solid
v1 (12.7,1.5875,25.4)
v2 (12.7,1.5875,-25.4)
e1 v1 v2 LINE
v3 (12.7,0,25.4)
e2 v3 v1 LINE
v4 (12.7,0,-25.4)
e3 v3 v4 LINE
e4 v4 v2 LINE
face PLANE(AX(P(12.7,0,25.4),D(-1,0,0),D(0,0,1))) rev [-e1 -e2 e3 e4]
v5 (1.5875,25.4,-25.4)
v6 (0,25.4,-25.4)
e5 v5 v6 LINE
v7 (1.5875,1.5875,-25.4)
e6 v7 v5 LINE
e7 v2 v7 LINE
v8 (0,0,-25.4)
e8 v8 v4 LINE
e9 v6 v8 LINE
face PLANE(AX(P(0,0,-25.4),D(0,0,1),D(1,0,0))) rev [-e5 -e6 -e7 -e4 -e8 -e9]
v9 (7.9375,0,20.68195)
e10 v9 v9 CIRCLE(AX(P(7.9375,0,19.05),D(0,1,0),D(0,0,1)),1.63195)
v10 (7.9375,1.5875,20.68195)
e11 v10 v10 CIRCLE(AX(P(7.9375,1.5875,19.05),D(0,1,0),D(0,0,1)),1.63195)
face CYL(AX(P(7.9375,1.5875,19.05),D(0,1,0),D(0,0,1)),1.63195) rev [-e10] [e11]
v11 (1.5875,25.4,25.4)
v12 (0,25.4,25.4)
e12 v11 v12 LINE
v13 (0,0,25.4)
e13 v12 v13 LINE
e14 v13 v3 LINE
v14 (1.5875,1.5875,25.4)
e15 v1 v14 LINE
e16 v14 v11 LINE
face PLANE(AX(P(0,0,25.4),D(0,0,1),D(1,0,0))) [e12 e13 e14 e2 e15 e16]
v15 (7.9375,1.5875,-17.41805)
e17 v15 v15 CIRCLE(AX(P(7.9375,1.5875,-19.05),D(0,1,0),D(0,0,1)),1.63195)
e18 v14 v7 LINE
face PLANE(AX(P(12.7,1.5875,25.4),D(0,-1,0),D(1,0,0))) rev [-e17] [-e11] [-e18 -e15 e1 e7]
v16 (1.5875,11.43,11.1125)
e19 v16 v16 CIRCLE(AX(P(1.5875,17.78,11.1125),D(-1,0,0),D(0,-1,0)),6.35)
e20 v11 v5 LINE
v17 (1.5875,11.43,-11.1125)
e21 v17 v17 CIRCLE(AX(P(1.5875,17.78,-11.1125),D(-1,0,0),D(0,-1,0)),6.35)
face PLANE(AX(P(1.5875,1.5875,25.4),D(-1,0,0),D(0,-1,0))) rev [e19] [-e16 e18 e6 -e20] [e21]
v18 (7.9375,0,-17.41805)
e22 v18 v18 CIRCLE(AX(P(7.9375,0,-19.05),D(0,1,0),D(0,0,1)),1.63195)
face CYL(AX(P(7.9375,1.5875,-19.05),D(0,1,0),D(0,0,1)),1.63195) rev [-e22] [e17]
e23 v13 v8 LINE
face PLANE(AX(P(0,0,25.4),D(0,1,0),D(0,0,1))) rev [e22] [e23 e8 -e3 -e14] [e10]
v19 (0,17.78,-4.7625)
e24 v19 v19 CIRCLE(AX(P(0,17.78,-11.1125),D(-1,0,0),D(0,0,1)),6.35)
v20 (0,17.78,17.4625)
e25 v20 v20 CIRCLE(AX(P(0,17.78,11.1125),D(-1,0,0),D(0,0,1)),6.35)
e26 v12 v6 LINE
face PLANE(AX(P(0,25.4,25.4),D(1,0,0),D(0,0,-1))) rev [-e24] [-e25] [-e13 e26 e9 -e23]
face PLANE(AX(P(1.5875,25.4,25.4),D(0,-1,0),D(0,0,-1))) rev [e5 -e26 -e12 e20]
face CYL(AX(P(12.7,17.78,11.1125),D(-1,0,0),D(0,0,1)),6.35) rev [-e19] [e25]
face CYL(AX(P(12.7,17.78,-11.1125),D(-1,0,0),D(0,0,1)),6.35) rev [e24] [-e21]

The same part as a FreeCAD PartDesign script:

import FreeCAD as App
import Part
import Sketcher

V = App.Vector
Q = App.Units.Quantity


def add_polygon(sketch, points):
    """Adds a closed chain of lines whose ends are joined by coincident constraints."""
    first, n = sketch.GeometryCount, len(points)
    for a, b in zip(points, points[1:] + points[:1]):
        sketch.addGeometry(Part.LineSegment(App.Vector(*a, 0), App.Vector(*b, 0)), False)
    for i in range(n):
        sketch.addConstraint(Sketcher.Constraint("Coincident", first + i, 2, first + (i + 1) % n, 1))

doc = App.newDocument("Part")
body = doc.addObject("PartDesign::Body", "Body")

# Sketch on XY plane
sketch1 = doc.addObject("Sketcher::SketchObject", "Sketch")
body.addObject(sketch1)
sketch1.AttachmentSupport = (doc.XY_Plane, [""])
sketch1.MapMode = "FlatFace"
add_polygon(sketch1, [(0, 0), (12.7, 0), (12.7, 1.6), (1.6, 1.6), (1.6, 25.4), (0, 25.4)])  # lines 0-5
sketch1.addConstraint(Sketcher.Constraint("Horizontal", 0))
sketch1.addConstraint(Sketcher.Constraint("Vertical", 1))
sketch1.addConstraint(Sketcher.Constraint("Horizontal", 2))
sketch1.addConstraint(Sketcher.Constraint("Vertical", 3))
sketch1.addConstraint(Sketcher.Constraint("Horizontal", 4))
sketch1.addConstraint(Sketcher.Constraint("Vertical", 5))
sketch1.addConstraint(Sketcher.Constraint("Coincident", 5, 2, -1, 1))
sketch1.addConstraint(Sketcher.Constraint("Equal", 4, 1))
sketch1.addConstraint(Sketcher.Constraint("DistanceY", 5, 2, 5, 1, Q("1 in")))
sketch1.addConstraint(Sketcher.Constraint("DistanceX", 0, 1, 0, 2, Q("0.5 in")))
sketch1.addConstraint(Sketcher.Constraint("DistanceX", 2, 2, 2, 1, Q("0.4375 in")))
pad1 = doc.addObject("PartDesign::Pad", "Pad")
body.addObject(pad1)
pad1.Profile = sketch1
pad1.Length = Q("2 in")
pad1.Midplane = True

# Sketch on YZ plane
sketch2 = doc.addObject("Sketcher::SketchObject", "Sketch001")
body.addObject(sketch2)
sketch2.AttachmentSupport = (doc.YZ_Plane, [""])
sketch2.MapMode = "FlatFace"
sketch2.addGeometry(Part.Circle(V(18, 11, 0), V(0, 0, 1), 6), False)
sketch2.addGeometry(Part.Circle(V(18, -11, 0), V(0, 0, 1), 6), False)
sketch2.addConstraint(Sketcher.Constraint("Equal", 0, 1))
sketch2.addConstraint(Sketcher.Constraint("Symmetric", 0, 3, 1, 3, -1))
sketch2.addConstraint(Sketcher.Constraint("Diameter", 0, Q("0.5 in")))
sketch2.addConstraint(Sketcher.Constraint("DistanceX", -1, 1, 0, 3, Q("0.7 in")))
sketch2.addConstraint(Sketcher.Constraint("DistanceY", -1, 1, 0, 3, Q("0.4375 in")))
pocket1 = doc.addObject("PartDesign::Pocket", "Pocket")
body.addObject(pocket1)
pocket1.Profile = sketch2
pocket1.Type = "ThroughAll"
pocket1.Reversed = True

# Sketch on XZ plane
sketch3 = doc.addObject("Sketcher::SketchObject", "Sketch002")
body.addObject(sketch3)
sketch3.AttachmentSupport = (doc.XZ_Plane, [""])
sketch3.MapMode = "FlatFace"
sketch3.AttachmentOffset = App.Placement(V(0, 0, -0.0625 * 25.4), App.Rotation())
sketch3.addGeometry(Part.Circle(V(7.9, -19.1, 0), V(0, 0, 1), 1.6), False)
sketch3.addGeometry(Part.Circle(V(7.9, 19.1, 0), V(0, 0, 1), 1.6), False)
sketch3.addConstraint(Sketcher.Constraint("Equal", 0, 1))
sketch3.addConstraint(Sketcher.Constraint("Symmetric", 0, 3, 1, 3, -1))
sketch3.addConstraint(Sketcher.Constraint("Diameter", 0, Q("0.1285 in")))
sketch3.addConstraint(Sketcher.Constraint("DistanceY", 0, 3, 1, 3, Q("1.5 in")))
sketch3.addConstraint(Sketcher.Constraint("DistanceX", -1, 1, 0, 3, Q("0.3125 in")))
doc.recompute()
hole = doc.addObject("PartDesign::Hole", "Hole")
body.addObject(hole)
hole.Profile = sketch3
hole.ThreadType = "None"
hole.Diameter = Q("0.1285 in")
hole.DepthType = "Dimension"
hole.Depth = Q("0.125 in")
hole.DrillPoint = "Angled"
hole.DrillPointAngle = 118
hole.Reversed = True

doc.recompute()
